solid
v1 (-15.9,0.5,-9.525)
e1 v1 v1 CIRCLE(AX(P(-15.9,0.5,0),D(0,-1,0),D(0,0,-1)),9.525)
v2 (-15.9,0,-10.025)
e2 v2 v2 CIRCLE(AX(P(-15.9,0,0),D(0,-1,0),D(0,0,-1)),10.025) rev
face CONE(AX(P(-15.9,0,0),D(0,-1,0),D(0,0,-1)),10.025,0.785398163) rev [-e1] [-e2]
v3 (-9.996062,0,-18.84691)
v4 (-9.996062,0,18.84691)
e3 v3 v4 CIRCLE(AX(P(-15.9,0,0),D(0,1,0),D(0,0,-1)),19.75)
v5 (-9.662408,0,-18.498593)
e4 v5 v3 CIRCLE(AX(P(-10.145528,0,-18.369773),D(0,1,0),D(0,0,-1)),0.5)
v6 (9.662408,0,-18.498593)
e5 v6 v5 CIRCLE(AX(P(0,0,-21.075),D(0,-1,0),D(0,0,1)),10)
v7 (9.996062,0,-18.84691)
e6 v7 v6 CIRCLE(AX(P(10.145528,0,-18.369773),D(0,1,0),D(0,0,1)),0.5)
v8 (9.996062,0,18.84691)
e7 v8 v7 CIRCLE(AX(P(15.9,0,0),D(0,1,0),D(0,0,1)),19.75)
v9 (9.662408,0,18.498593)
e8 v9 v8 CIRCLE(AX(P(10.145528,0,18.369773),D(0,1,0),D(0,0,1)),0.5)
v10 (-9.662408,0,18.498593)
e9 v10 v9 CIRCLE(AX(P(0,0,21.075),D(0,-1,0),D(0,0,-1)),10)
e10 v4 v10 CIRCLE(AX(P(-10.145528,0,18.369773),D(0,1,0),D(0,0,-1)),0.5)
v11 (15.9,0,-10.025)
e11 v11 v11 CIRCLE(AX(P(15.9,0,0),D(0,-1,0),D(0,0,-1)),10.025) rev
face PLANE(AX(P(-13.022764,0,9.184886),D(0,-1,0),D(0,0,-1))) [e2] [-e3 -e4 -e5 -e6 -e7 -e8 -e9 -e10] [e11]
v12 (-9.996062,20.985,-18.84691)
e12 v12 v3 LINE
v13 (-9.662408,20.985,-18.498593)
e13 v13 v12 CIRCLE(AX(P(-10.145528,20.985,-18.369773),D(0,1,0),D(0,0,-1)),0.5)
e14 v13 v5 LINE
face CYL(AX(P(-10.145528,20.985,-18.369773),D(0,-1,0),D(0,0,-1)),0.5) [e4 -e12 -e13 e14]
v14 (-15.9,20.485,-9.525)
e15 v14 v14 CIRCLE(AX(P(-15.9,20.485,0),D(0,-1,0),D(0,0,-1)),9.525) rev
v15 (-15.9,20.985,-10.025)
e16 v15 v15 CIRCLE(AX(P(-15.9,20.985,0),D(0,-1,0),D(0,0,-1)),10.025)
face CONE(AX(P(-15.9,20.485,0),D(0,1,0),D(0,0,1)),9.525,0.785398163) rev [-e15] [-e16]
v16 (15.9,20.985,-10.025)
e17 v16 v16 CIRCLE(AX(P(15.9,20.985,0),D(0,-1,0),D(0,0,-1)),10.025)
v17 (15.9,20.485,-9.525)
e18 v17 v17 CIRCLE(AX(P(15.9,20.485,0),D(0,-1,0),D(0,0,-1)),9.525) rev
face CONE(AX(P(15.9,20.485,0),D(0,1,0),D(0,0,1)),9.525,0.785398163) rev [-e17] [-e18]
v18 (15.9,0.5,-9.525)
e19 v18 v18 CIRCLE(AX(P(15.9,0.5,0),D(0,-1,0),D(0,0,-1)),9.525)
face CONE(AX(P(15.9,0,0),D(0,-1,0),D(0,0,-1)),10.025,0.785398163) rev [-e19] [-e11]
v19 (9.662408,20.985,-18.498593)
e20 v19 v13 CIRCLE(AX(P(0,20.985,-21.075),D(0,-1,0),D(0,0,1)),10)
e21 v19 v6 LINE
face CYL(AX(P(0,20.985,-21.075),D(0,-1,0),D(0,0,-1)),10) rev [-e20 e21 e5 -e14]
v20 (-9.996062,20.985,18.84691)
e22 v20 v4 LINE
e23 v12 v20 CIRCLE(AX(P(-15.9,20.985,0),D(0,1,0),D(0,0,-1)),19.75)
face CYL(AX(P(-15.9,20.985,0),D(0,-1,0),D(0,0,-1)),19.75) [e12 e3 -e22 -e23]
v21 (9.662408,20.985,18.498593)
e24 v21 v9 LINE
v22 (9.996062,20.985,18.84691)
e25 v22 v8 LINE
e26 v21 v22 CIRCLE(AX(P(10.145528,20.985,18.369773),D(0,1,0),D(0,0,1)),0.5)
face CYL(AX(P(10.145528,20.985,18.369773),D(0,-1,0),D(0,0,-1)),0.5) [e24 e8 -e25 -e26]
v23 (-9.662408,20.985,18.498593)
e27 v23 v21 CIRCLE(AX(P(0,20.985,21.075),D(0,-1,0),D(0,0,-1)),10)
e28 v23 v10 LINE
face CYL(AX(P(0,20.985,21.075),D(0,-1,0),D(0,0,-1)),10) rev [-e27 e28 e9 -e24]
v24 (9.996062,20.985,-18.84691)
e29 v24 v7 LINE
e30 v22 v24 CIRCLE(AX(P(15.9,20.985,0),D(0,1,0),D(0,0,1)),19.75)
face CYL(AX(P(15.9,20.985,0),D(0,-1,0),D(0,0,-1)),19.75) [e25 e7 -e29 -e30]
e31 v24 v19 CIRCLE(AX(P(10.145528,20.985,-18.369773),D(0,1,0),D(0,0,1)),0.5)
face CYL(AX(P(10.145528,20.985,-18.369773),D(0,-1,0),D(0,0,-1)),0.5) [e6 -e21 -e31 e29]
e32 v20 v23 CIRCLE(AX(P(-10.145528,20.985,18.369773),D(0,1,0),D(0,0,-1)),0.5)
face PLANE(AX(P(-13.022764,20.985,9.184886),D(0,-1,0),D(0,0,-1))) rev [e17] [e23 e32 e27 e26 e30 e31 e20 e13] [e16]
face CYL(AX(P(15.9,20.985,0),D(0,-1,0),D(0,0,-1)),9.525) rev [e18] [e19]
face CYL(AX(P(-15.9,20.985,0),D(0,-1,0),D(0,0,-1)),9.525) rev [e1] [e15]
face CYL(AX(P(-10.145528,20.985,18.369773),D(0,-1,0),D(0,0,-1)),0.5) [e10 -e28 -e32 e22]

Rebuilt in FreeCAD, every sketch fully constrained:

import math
import FreeCAD as App
import Part
import Sketcher


def edges_at(feature, points):
    """Names of the edges that pass closest to the given points."""
    edges = feature.Shape.Edges
    near = lambda p: min(range(len(edges)), key=lambda i: edges[i].distToShape(Part.Vertex(*p))[0])
    return sorted({f"Edge{near(p) + 1}" for p in points})

doc = App.newDocument("Part")
body = doc.addObject("PartDesign::Body", "Body")

# Sketch on XZ plane
sketch1 = body.newObject("Sketcher::SketchObject", "Sketch")
sketch1.AttachmentSupport = (doc.getObject("XZ_Plane"), [""])
sketch1.MapMode = "FlatFace"
sketch1.addGeometry(Part.ArcOfCircle(Part.Circle(App.Vector(0, -21.075, 0), App.Vector(0, 0, 1), 10), math.radians(14.930114), math.radians(165.069886)), False)
sketch1.addGeometry(Part.ArcOfCircle(Part.Circle(App.Vector(-10.145528, -18.369773, 0), App.Vector(0, 0, 1), 0.5), math.radians(-72.606436), math.radians(-14.930114)), False)
sketch1.addGeometry(Part.ArcOfCircle(Part.Circle(App.Vector(-15.9, 0, 0), App.Vector(0, 0, 1), 19.75), math.radians(72.606437), math.radians(287.393563)), False)
sketch1.addGeometry(Part.ArcOfCircle(Part.Circle(App.Vector(-10.145528, 18.369773, 0), App.Vector(0, 0, 1), 0.5), math.radians(14.930114), math.radians(72.606436)), False)
sketch1.addGeometry(Part.ArcOfCircle(Part.Circle(App.Vector(0, 21.075, 0), App.Vector(0, 0, 1), 10), math.radians(-165.069886), math.radians(-14.930114)), False)
sketch1.addGeometry(Part.ArcOfCircle(Part.Circle(App.Vector(10.145528, 18.369773, 0), App.Vector(0, 0, 1), 0.5), math.radians(107.393564), math.radians(165.069886)), False)
sketch1.addGeometry(Part.ArcOfCircle(Part.Circle(App.Vector(15.9, 0, 0), App.Vector(0, 0, 1), 19.75), math.radians(-107.393563), math.radians(107.393563)), False)
sketch1.addGeometry(Part.ArcOfCircle(Part.Circle(App.Vector(10.145528, -18.369773, 0), App.Vector(0, 0, 1), 0.5), math.radians(-165.069886), math.radians(-107.393564)), False)
sketch1.addGeometry(Part.Circle(App.Vector(15.9, 0, 0), App.Vector(0, 0, 1), 9.525), False)
sketch1.addGeometry(Part.Circle(App.Vector(-15.9, 0, 0), App.Vector(0, 0, 1), 9.525), False)
sketch1.addConstraint(Sketcher.Constraint("Tangent", 0, 2, 1, 2))
sketch1.addConstraint(Sketcher.Constraint("Tangent", 1, 1, 2, 2))
sketch1.addConstraint(Sketcher.Constraint("Tangent", 2, 1, 3, 2))
sketch1.addConstraint(Sketcher.Constraint("Tangent", 3, 1, 4, 1))
sketch1.addConstraint(Sketcher.Constraint("Tangent", 4, 2, 5, 2))
sketch1.addConstraint(Sketcher.Constraint("Tangent", 5, 1, 6, 2))
sketch1.addConstraint(Sketcher.Constraint("Tangent", 6, 1, 7, 2))
sketch1.addConstraint(Sketcher.Constraint("Tangent", 7, 1, 0, 1))
sketch1.addConstraint(Sketcher.Constraint("Coincident", 8, 3, 6, 3))
sketch1.addConstraint(Sketcher.Constraint("Coincident", 9, 3, 2, 3))
sketch1.addConstraint(Sketcher.Constraint("Equal", 1, 3))
sketch1.addConstraint(Sketcher.Constraint("Equal", 0, 4))
sketch1.addConstraint(Sketcher.Constraint("Equal", 3, 5))
sketch1.addConstraint(Sketcher.Constraint("Equal", 2, 6))
sketch1.addConstraint(Sketcher.Constraint("Equal", 5, 7))
sketch1.addConstraint(Sketcher.Constraint("Equal", 8, 9))
sketch1.addConstraint(Sketcher.Constraint("Symmetric", 0, 3, 4, 3, -1, 1))
sketch1.addConstraint(Sketcher.Constraint("Symmetric", 2, 3, 6, 3, -1, 1))
sketch1.addConstraint(Sketcher.Constraint("Symmetric", 3, 3, 5, 3, -2))
sketch1.addConstraint(Sketcher.Constraint("Radius", 0, 10.0))
sketch1.addConstraint(Sketcher.Constraint("Radius", 1, 0.5))
sketch1.addConstraint(Sketcher.Constraint("Diameter", 8, 19.05))
sketch1.addConstraint(Sketcher.Constraint("Radius", 2, 19.75))
sketch1.addConstraint(Sketcher.Constraint("DistanceX", 2, 3, -1, 1, 15.9))
sketch1.addConstraint(Sketcher.Constraint("DistanceY", 0, 3, 4, 3, 42.15))
pad1 = body.newObject("PartDesign::Pad", "Pad")
pad1.Profile = sketch1
pad1.Length = 20.985
pad1.Reversed = True
doc.recompute()

chamfer = body.newObject("PartDesign::Chamfer", "Chamfer")
chamfer.Base = (pad1, edges_at(pad1, [
    (-15.9, 0, -9.525),
    (-15.9, 20.985, -9.525),
    (15.9, 0, -9.525),
    (15.9, 20.985, -9.525),
]))
chamfer.Size = 0.5

doc.recompute()
